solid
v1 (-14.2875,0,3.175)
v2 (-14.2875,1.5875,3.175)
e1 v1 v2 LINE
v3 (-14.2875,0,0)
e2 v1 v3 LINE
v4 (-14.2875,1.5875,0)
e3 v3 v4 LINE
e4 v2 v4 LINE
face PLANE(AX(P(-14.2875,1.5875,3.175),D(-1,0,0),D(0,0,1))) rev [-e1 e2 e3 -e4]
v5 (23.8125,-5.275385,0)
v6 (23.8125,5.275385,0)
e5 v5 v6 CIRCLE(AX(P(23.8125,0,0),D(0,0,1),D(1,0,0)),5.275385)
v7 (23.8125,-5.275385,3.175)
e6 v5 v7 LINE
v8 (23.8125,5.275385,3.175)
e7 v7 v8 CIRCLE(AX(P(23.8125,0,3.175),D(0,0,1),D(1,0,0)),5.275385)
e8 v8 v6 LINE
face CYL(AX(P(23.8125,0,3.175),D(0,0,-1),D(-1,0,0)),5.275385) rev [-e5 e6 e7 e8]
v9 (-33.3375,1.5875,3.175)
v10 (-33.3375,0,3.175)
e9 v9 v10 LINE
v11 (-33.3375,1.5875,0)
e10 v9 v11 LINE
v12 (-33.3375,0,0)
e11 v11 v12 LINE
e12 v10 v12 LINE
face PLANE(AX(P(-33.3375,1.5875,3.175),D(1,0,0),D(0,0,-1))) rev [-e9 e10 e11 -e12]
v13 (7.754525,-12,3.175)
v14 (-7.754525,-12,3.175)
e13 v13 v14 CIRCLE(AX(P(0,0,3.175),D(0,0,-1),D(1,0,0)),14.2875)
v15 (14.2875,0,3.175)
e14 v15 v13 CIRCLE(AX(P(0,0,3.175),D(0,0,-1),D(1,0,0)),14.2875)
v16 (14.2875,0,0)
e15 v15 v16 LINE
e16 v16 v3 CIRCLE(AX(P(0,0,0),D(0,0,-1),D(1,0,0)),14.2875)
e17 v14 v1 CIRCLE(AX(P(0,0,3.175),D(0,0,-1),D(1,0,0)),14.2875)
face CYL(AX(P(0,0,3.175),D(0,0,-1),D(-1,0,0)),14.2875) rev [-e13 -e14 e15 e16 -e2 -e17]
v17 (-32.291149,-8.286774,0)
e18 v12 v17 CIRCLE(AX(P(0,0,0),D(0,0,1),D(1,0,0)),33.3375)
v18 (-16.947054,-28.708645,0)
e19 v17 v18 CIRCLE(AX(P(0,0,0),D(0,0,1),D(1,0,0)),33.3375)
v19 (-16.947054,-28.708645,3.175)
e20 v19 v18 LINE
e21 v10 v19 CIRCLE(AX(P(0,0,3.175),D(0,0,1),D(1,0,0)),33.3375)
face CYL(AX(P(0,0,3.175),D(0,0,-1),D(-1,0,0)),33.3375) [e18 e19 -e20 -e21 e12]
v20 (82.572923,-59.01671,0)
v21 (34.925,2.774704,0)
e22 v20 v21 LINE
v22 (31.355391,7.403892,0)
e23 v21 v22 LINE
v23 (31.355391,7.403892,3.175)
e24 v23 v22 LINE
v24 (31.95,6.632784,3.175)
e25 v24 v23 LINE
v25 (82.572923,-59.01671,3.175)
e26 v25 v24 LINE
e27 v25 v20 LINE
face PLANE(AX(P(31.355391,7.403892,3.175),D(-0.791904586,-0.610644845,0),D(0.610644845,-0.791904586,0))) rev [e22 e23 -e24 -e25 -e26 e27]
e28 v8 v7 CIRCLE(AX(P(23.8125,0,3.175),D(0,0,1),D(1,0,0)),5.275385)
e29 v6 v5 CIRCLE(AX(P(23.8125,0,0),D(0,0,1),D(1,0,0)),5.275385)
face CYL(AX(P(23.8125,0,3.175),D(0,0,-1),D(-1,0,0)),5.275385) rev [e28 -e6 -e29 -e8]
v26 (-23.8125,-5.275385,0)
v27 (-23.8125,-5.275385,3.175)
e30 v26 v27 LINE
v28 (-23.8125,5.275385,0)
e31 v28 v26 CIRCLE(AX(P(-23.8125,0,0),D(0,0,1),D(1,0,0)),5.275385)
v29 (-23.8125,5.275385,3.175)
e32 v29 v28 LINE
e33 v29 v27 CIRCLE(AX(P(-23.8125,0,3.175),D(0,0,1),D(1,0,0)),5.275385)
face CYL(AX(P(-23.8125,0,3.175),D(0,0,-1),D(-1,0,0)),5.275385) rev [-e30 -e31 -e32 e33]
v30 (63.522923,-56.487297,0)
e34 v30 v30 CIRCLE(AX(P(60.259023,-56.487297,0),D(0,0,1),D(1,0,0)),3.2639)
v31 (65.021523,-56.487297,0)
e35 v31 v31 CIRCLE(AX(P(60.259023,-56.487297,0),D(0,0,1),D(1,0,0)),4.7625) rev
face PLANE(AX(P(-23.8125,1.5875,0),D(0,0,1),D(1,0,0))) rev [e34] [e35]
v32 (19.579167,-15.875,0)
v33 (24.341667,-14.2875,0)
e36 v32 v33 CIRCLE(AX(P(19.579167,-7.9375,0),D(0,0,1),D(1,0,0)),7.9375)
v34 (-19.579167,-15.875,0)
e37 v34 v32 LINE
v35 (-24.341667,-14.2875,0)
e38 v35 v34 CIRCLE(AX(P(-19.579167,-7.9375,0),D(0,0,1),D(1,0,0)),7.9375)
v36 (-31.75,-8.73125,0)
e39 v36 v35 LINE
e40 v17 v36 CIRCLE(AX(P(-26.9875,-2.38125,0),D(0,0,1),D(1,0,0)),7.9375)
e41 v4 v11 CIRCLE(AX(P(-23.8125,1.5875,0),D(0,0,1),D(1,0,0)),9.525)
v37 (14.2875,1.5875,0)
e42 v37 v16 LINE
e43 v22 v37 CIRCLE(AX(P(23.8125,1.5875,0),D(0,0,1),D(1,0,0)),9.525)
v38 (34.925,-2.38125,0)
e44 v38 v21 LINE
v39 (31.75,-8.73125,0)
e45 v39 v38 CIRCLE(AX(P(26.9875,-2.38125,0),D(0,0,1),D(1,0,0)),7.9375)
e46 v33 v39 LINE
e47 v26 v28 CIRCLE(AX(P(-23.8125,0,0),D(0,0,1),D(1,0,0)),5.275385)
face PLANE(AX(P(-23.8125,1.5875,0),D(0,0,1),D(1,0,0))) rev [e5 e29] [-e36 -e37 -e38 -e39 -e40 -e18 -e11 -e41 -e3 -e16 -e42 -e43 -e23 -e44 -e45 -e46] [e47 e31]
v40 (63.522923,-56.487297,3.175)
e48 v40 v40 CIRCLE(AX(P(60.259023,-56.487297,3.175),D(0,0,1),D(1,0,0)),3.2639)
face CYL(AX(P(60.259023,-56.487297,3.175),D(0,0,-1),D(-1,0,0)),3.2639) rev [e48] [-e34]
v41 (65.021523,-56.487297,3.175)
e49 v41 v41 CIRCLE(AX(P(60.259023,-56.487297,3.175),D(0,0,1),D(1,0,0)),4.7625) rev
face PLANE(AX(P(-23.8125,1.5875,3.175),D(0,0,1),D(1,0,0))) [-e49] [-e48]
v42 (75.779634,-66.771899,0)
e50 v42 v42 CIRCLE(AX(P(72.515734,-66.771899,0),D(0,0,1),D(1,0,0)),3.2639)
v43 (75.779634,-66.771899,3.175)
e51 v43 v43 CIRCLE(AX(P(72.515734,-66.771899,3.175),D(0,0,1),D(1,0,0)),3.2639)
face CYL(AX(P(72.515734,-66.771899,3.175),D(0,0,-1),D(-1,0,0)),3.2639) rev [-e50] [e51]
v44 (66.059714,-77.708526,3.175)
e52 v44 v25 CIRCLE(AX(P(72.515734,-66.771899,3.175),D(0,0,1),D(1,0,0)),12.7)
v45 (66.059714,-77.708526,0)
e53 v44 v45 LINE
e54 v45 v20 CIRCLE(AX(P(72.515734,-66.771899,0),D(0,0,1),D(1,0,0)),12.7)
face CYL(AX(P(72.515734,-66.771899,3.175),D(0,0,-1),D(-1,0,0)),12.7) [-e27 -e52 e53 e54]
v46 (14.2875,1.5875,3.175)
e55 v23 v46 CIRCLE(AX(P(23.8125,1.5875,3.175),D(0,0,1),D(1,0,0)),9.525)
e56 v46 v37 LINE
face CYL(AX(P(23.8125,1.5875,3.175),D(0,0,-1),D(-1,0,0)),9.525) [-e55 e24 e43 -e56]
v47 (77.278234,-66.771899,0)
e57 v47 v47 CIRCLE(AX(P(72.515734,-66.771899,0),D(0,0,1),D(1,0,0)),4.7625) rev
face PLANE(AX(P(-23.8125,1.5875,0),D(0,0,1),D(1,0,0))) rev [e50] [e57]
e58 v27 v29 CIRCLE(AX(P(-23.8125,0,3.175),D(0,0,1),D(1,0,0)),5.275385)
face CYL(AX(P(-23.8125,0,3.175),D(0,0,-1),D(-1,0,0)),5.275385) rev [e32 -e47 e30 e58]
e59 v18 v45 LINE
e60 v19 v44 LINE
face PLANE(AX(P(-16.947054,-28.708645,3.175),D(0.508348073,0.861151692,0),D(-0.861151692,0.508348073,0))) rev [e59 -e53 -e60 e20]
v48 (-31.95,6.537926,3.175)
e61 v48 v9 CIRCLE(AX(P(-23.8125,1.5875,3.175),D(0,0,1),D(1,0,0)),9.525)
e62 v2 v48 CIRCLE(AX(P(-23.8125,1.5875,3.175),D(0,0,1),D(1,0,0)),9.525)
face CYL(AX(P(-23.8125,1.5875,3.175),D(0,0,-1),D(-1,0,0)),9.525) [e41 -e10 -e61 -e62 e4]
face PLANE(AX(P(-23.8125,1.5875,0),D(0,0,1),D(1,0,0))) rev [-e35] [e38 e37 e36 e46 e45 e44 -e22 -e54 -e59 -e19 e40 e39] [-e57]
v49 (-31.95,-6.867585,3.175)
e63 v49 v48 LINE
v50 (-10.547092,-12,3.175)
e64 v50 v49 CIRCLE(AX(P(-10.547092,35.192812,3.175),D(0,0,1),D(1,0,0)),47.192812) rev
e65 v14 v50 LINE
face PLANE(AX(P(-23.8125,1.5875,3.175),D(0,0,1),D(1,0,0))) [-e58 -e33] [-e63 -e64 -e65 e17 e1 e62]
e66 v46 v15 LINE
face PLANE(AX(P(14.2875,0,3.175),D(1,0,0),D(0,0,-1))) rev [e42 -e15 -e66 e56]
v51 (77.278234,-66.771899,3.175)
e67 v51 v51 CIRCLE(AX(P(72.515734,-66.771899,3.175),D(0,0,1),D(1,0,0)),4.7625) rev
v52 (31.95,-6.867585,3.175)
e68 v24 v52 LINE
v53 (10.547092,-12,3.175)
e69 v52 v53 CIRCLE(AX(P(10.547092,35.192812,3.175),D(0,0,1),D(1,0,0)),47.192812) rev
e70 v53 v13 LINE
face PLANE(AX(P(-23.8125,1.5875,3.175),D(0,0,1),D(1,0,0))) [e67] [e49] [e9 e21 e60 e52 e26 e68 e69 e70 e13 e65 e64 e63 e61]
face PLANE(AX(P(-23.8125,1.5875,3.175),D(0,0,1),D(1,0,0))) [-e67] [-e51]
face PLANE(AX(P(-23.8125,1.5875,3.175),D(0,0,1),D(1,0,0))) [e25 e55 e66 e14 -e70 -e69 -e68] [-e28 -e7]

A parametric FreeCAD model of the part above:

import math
import FreeCAD as App
import Part
import Sketcher
Q = App.Units.Quantity

doc = App.newDocument("Part")
params = doc.addObject("Spreadsheet::Sheet", "Params")
for row, (alias, value) in enumerate([
    ("sketch1_radius", "0.5 in"),
    ("sketch1_diameter", "0.257 in"),
    ("sketch1_radius2", "0.375 in"),
    ("sketch1_radius3", "1.3125 in"),
    ("sketch1_height", "0.0625 in"),
    ("pad1_length", "0.125 in"),
], start=1):
    params.set(f"A{row}", alias)
    params.set(f"B{row}", "=" + value)
    params.setAlias(f"B{row}", alias)

body = doc.addObject("PartDesign::Body", "Body")

# Sketch on XY plane
sketch1 = body.newObject("Sketcher::SketchObject", "Sketch")
sketch1.AttachmentSupport = (doc.getObject("XY_Plane"), [""])
sketch1.MapMode = "FlatFace"
sketch1.addGeometry([
    Part.LineSegment(App.Vector(-14.3, 0, 0), App.Vector(-14.3, 1.6, 0)),  # 0
    Part.ArcOfCircle(Part.Circle(App.Vector(-23.8, 1.6, 0), App.Vector(0, 0, 1), 9.5), math.radians(0), math.radians(180)),  # 1
    Part.LineSegment(App.Vector(-33.3, 1.6, 0), App.Vector(-33.3, 0, 0)),  # 2
    Part.ArcOfCircle(Part.Circle(App.Vector(0, 0, 0), App.Vector(0, 0, 1), 33.3), math.radians(-180), math.radians(-121)),  # 3
    Part.LineSegment(App.Vector(-16.9, -28.7, 0), App.Vector(66.1, -77.7, 0)),  # 4
    Part.ArcOfCircle(Part.Circle(App.Vector(72.5, -66.8, 0), App.Vector(0, 0, 1), 12.7), math.radians(-121), math.radians(38)),  # 5
    Part.LineSegment(App.Vector(82.6, -59, 0), App.Vector(31.4, 7.4, 0)),  # 6
    Part.ArcOfCircle(Part.Circle(App.Vector(23.8, 1.6, 0), App.Vector(0, 0, 1), 9.5), math.radians(38), math.radians(180)),  # 7
    Part.LineSegment(App.Vector(14.3, 1.6, 0), App.Vector(14.3, 0, 0)),  # 8
    Part.ArcOfCircle(Part.Circle(App.Vector(0, 0, 0), App.Vector(0, 0, 1), 14.3), math.radians(180), math.radians(360)),  # 9
    Part.Circle(App.Vector(72.5, -66.8, 0), App.Vector(0, 0, 1), 3.3),  # 10
    Part.Circle(App.Vector(60.3, -56.5, 0), App.Vector(0, 0, 1), 3.3),  # 11
    Part.Circle(App.Vector(23.8, 0, 0), App.Vector(0, 0, 1), 5.3),  # 12
    Part.Circle(App.Vector(-23.8, 0, 0), App.Vector(0, 0, 1), 5.3),  # 13
], False)
sketch1.addConstraint([
    Sketcher.Constraint("Tangent", 0, 2, 1, 1),
    Sketcher.Constraint("Tangent", 1, 2, 2, 1),
    Sketcher.Constraint("Tangent", 2, 2, 3, 1),
    Sketcher.Constraint("Tangent", 3, 2, 4, 1),
    Sketcher.Constraint("Tangent", 4, 2, 5, 1),
    Sketcher.Constraint("Tangent", 5, 2, 6, 1),
    Sketcher.Constraint("Tangent", 6, 2, 7, 1),
    Sketcher.Constraint("Tangent", 7, 2, 8, 1),
    Sketcher.Constraint("Tangent", 8, 2, 9, 2),
    Sketcher.Constraint("Tangent", 9, 1, 0, 1),
    Sketcher.Constraint("Vertical", 0),
    Sketcher.Constraint("Vertical", 2),
    Sketcher.Constraint("Vertical", 8),
    Sketcher.Constraint("Coincident", 3, 3, -1, 1),
    Sketcher.Constraint("Coincident", 9, 3, -1, 1),
    Sketcher.Constraint("Coincident", 10, 3, 5, 3),
    Sketcher.Constraint("Equal", 1, 7),
    Sketcher.Constraint("Equal", 10, 11),
    Sketcher.Constraint("Equal", 12, 13),
    Sketcher.Constraint("Symmetric", 12, 3, 13, 3, -1, 1),
    Sketcher.Constraint("PointOnObject", 12, 3, -1),
    Sketcher.Constraint("Horizontal", 1, 3, 7, 3),
    Sketcher.Constraint("Vertical", 7, 3, 12, 3),
    Sketcher.Constraint("Radius", 5, Q("0.5 in")),
    Sketcher.Constraint("Diameter", 10, Q("0.257 in")),
    Sketcher.Constraint("Radius", 1, Q("0.375 in")),
    Sketcher.Constraint("Radius", 3, Q("1.3125 in")),
    Sketcher.Constraint("DistanceY", 0, 1, 0, 2, Q("0.0625 in")),
    Sketcher.Constraint("Diameter", 12, 10.550769),
    Sketcher.Constraint("DistanceX", 11, 3, 5, 2, Q("0.8785 in")),
    Sketcher.Constraint("Distance", 6, 83.874501),
    Sketcher.Constraint("DistanceY", 5, 3, -1, 1, 66.771899),
    Sketcher.Constraint("DistanceY", 5, 3, 11, 3, 10.284602),
])
sketch1.setExpression("Constraints[23]", "Params.sketch1_radius")
sketch1.setExpression("Constraints[24]", "Params.sketch1_diameter")
sketch1.setExpression("Constraints[25]", "Params.sketch1_radius2")
sketch1.setExpression("Constraints[26]", "Params.sketch1_radius3")
sketch1.setExpression("Constraints[27]", "Params.sketch1_height")
pad1 = body.newObject("PartDesign::Pad", "Pad")
pad1.Profile = sketch1
pad1.setExpression("Length", "Params.pad1_length")

doc.recompute()
